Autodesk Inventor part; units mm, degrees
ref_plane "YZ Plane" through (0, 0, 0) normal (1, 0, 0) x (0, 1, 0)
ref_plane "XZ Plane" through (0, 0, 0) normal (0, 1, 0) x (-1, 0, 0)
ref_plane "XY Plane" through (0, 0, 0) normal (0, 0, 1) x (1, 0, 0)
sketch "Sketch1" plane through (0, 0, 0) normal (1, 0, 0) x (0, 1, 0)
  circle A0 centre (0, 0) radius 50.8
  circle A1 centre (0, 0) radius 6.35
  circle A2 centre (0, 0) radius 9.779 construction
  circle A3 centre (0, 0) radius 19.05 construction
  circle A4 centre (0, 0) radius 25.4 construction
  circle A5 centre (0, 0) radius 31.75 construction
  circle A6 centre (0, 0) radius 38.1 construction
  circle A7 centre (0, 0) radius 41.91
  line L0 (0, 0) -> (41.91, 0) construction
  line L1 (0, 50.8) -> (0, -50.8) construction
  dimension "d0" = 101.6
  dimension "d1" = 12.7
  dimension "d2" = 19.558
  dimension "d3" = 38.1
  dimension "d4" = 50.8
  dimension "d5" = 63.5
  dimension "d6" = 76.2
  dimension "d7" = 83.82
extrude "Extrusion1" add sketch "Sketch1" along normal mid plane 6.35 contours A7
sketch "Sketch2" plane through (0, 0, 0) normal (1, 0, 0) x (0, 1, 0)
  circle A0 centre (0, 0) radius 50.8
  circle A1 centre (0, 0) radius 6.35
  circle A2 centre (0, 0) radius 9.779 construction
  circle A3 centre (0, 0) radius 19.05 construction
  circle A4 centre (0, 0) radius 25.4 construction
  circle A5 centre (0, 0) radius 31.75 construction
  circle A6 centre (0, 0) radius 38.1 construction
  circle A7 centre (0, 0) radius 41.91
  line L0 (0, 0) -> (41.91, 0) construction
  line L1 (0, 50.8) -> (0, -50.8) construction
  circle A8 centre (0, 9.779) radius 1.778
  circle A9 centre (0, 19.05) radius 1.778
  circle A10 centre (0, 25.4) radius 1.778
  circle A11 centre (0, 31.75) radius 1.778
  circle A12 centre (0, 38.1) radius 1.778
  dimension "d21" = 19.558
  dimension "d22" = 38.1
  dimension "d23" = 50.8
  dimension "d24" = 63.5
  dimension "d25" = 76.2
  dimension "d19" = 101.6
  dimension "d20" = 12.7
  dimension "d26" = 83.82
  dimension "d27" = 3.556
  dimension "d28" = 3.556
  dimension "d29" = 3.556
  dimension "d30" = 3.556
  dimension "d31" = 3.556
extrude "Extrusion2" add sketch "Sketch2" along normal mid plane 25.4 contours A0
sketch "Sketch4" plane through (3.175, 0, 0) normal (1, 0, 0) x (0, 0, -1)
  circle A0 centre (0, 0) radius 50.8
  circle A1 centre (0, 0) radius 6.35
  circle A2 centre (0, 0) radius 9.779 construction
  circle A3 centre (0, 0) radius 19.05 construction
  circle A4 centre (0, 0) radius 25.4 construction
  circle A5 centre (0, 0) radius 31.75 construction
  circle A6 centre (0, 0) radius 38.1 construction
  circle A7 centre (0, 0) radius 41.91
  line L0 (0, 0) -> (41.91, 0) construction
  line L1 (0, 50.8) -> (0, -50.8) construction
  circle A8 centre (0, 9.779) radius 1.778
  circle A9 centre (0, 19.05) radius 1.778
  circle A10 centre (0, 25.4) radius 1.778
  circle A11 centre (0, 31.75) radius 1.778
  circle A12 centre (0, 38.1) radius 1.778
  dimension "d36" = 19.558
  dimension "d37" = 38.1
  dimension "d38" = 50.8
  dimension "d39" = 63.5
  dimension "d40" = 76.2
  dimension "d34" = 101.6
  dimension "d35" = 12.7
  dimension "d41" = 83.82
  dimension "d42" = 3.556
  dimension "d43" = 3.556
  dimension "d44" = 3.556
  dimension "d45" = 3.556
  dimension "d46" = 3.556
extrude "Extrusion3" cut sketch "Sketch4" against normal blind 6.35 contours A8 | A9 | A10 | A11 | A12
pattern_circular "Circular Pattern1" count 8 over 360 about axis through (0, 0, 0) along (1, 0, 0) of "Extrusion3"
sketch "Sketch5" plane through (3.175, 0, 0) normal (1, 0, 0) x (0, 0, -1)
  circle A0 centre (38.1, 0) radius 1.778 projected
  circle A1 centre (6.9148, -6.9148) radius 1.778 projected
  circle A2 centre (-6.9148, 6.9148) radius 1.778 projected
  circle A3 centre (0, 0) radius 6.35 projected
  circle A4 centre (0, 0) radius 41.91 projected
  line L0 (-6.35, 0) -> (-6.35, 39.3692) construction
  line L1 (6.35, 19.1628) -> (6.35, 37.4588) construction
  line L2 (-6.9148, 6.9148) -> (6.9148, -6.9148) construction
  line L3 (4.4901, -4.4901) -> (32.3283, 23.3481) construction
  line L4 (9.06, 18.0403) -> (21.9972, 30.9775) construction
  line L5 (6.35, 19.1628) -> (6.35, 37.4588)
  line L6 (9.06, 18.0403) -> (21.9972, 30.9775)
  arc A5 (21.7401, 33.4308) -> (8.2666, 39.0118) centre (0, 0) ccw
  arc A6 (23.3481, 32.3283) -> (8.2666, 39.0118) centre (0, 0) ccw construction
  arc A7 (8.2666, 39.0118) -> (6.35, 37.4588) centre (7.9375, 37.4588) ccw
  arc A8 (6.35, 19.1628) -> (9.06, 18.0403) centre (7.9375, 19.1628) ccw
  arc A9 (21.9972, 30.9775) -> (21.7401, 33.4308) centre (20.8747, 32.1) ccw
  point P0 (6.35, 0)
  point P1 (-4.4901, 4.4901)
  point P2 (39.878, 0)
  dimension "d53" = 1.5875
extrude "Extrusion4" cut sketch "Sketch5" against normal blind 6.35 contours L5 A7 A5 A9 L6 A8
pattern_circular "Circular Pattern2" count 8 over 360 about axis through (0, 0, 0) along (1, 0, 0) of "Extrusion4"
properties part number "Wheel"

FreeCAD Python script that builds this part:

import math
import FreeCAD as App
import Part
import Sketcher
Q = App.Units.Quantity

doc = App.newDocument("Part")
body = doc.addObject("PartDesign::Body", "Body")

# Sketch on YZ plane
sketch1 = body.newObject("Sketcher::SketchObject", "Sketch")
sketch1.AttachmentSupport = (doc.getObject("YZ_Plane"), [""])
sketch1.MapMode = "FlatFace"
sketch1.addGeometry([
    Part.Circle(App.Vector(0, 0, 0), App.Vector(0, 0, 1), 42),
    Part.Circle(App.Vector(0, 0, 0), App.Vector(0, 0, 1), 6),
], False)
sketch1.addConstraint([
    Sketcher.Constraint("Coincident", 0, 3, -1, 1),
    Sketcher.Constraint("Coincident", 1, 3, -1, 1),
    Sketcher.Constraint("Diameter", 0, Q("3.3 in")),
    Sketcher.Constraint("Diameter", 1, Q("0.5 in")),
])
pad1 = body.newObject("PartDesign::Pad", "Pad")
pad1.Profile = sketch1
pad1.Length = Q("0.25 in")
pad1.Midplane = True

# Sketch on YZ plane
sketch2 = body.newObject("Sketcher::SketchObject", "Sketch001")
sketch2.AttachmentSupport = (doc.getObject("YZ_Plane"), [""])
sketch2.MapMode = "FlatFace"
sketch2.addGeometry([
    Part.Circle(App.Vector(0, 0, 0), App.Vector(0, 0, 1), 51),
    Part.Circle(App.Vector(0, 0, 0), App.Vector(0, 0, 1), 42),
], False)
sketch2.addConstraint([
    Sketcher.Constraint("Coincident", 0, 3, -1, 1),
    Sketcher.Constraint("Coincident", 1, 3, -1, 1),
    Sketcher.Constraint("Diameter", 0, Q("4 in")),
    Sketcher.Constraint("Diameter", 1, Q("3.3 in")),
])
pad2 = body.newObject("PartDesign::Pad", "Pad001")
pad2.Profile = sketch2
pad2.Length = Q("1 in")
pad2.Midplane = True

# Sketch on YZ plane
sketch3 = body.newObject("Sketcher::SketchObject", "Sketch002")
sketch3.AttachmentSupport = (doc.getObject("YZ_Plane"), [""])
sketch3.MapMode = "FlatFace"
sketch3.AttachmentOffset = App.Placement(App.Vector(0, 0, 0.125 * 25.4), App.Rotation())
sketch3.addGeometry([
    Part.Circle(App.Vector(9.8, 0, 0), App.Vector(0, 0, 1), 1.8),  # 0
    Part.Circle(App.Vector(19.1, 0, 0), App.Vector(0, 0, 1), 1.8),  # 1
    Part.Circle(App.Vector(25.4, 0, 0), App.Vector(0, 0, 1), 1.8),  # 2
    Part.Circle(App.Vector(31.8, 0, 0), App.Vector(0, 0, 1), 1.8),  # 3
    Part.Circle(App.Vector(38.1, 0, 0), App.Vector(0, 0, 1), 1.8),  # 4
], False)
sketch3.addConstraint([
    Sketcher.Constraint("Equal", 0, 1),
    Sketcher.Constraint("Equal", 1, 2),
    Sketcher.Constraint("Equal", 2, 3),
    Sketcher.Constraint("Equal", 3, 4),
    Sketcher.Constraint("PointOnObject", 0, 3, -1),
    Sketcher.Constraint("PointOnObject", 1, 3, -1),
    Sketcher.Constraint("PointOnObject", 2, 3, -1),
    Sketcher.Constraint("PointOnObject", 3, 3, -1),
    Sketcher.Constraint("PointOnObject", 4, 3, -1),
    Sketcher.Constraint("Diameter", 0, Q("0.14 in")),
    Sketcher.Constraint("DistanceX", -1, 1, 4, 3, Q("1.5 in")),
    Sketcher.Constraint("DistanceX", 1, 3, 3, 3, Q("0.5 in")),
    Sketcher.Constraint("DistanceX", 2, 3, 4, 3, Q("0.5 in")),
    Sketcher.Constraint("DistanceX", -1, 1, 1, 3, Q("0.75 in")),
    Sketcher.Constraint("DistanceX", -1, 1, 0, 3, Q("0.385 in")),
])
pocket1 = body.newObject("PartDesign::Pocket", "Pocket")
pocket1.Profile = sketch3
pocket1.Length = Q("0.25 in")
doc.recompute()

polarpattern = body.newObject("PartDesign::PolarPattern", "PolarPattern")
polarpattern.Originals = [pocket1]
polarpattern.Axis = (doc.getObject("X_Axis"), [""])
polarpattern.Angle = 360
polarpattern.Occurrences = 8
body.Tip = polarpattern

# Sketch on YZ plane
sketch4 = body.newObject("Sketcher::SketchObject", "Sketch003")
sketch4.AttachmentSupport = (doc.getObject("YZ_Plane"), [""])
sketch4.MapMode = "FlatFace"
sketch4.AttachmentOffset = App.Placement(App.Vector(0, 0, 0.125 * 25.4), App.Rotation())
sketch4.addGeometry([
    Part.LineSegment(App.Vector(37.5, -6.3, 0), App.Vector(19.2, -6.3, 0)),  # 0
    Part.ArcOfCircle(Part.Circle(App.Vector(19.2, -7.9, 0), App.Vector(0, 0, 1), 1.6), math.radians(90), math.radians(225)),  # 1
    Part.LineSegment(App.Vector(18, -9.1, 0), App.Vector(31, -22, 0)),  # 2
    Part.ArcOfCircle(Part.Circle(App.Vector(32.1, -20.9, 0), App.Vector(0, 0, 1), 1.6), math.radians(-135), math.radians(-33)),  # 3
    Part.ArcOfCircle(Part.Circle(App.Vector(0, 0, 0), App.Vector(0, 0, 1), 39.9), math.radians(-33), math.radians(-12)),  # 4
    Part.ArcOfCircle(Part.Circle(App.Vector(37.5, -7.9, 0), App.Vector(0, 0, 1), 1.6), math.radians(-12), math.radians(90)),  # 5
], False)
sketch4.addConstraint([
    Sketcher.Constraint("Tangent", 0, 2, 1, 1),
    Sketcher.Constraint("Tangent", 1, 2, 2, 1),
    Sketcher.Constraint("Tangent", 2, 2, 3, 1),
    Sketcher.Constraint("Tangent", 3, 2, 4, 1),
    Sketcher.Constraint("Tangent", 4, 2, 5, 1),
    Sketcher.Constraint("Tangent", 5, 2, 0, 1),
    Sketcher.Constraint("Horizontal", 0),
    Sketcher.Constraint("Equal", 1, 3),
    Sketcher.Constraint("Equal", 3, 5),
    Sketcher.Constraint("Radius", 1, Q("0.0625 in")),
    Sketcher.Constraint("Angle", 2, Q("-45 deg")),
    Sketcher.Constraint("Radius", 4, Q("1.5701 in")),
    Sketcher.Constraint("DistanceY", 0, 2, -1, 1, Q("0.25 in")),
    Sketcher.Constraint("DistanceX", 0, 2, 0, 1, 18.296),
    Sketcher.Constraint("DistanceX", 4, 3, -1, 1, Q("0.0001 in")),
    Sketcher.Constraint("DistanceY", 3, 2, -1, 1, Q("0.8559 in")),
])
pocket2 = body.newObject("PartDesign::Pocket", "Pocket001")
pocket2.Profile = sketch4
pocket2.Length = Q("0.25 in")
doc.recompute()

polarpattern2 = body.newObject("PartDesign::PolarPattern", "PolarPattern001")
polarpattern2.Originals = [pocket2]
polarpattern2.Axis = (doc.getObject("X_Axis"), [""])
polarpattern2.Angle = 360
polarpattern2.Occurrences = 8
body.Tip = polarpattern2

doc.recompute()
